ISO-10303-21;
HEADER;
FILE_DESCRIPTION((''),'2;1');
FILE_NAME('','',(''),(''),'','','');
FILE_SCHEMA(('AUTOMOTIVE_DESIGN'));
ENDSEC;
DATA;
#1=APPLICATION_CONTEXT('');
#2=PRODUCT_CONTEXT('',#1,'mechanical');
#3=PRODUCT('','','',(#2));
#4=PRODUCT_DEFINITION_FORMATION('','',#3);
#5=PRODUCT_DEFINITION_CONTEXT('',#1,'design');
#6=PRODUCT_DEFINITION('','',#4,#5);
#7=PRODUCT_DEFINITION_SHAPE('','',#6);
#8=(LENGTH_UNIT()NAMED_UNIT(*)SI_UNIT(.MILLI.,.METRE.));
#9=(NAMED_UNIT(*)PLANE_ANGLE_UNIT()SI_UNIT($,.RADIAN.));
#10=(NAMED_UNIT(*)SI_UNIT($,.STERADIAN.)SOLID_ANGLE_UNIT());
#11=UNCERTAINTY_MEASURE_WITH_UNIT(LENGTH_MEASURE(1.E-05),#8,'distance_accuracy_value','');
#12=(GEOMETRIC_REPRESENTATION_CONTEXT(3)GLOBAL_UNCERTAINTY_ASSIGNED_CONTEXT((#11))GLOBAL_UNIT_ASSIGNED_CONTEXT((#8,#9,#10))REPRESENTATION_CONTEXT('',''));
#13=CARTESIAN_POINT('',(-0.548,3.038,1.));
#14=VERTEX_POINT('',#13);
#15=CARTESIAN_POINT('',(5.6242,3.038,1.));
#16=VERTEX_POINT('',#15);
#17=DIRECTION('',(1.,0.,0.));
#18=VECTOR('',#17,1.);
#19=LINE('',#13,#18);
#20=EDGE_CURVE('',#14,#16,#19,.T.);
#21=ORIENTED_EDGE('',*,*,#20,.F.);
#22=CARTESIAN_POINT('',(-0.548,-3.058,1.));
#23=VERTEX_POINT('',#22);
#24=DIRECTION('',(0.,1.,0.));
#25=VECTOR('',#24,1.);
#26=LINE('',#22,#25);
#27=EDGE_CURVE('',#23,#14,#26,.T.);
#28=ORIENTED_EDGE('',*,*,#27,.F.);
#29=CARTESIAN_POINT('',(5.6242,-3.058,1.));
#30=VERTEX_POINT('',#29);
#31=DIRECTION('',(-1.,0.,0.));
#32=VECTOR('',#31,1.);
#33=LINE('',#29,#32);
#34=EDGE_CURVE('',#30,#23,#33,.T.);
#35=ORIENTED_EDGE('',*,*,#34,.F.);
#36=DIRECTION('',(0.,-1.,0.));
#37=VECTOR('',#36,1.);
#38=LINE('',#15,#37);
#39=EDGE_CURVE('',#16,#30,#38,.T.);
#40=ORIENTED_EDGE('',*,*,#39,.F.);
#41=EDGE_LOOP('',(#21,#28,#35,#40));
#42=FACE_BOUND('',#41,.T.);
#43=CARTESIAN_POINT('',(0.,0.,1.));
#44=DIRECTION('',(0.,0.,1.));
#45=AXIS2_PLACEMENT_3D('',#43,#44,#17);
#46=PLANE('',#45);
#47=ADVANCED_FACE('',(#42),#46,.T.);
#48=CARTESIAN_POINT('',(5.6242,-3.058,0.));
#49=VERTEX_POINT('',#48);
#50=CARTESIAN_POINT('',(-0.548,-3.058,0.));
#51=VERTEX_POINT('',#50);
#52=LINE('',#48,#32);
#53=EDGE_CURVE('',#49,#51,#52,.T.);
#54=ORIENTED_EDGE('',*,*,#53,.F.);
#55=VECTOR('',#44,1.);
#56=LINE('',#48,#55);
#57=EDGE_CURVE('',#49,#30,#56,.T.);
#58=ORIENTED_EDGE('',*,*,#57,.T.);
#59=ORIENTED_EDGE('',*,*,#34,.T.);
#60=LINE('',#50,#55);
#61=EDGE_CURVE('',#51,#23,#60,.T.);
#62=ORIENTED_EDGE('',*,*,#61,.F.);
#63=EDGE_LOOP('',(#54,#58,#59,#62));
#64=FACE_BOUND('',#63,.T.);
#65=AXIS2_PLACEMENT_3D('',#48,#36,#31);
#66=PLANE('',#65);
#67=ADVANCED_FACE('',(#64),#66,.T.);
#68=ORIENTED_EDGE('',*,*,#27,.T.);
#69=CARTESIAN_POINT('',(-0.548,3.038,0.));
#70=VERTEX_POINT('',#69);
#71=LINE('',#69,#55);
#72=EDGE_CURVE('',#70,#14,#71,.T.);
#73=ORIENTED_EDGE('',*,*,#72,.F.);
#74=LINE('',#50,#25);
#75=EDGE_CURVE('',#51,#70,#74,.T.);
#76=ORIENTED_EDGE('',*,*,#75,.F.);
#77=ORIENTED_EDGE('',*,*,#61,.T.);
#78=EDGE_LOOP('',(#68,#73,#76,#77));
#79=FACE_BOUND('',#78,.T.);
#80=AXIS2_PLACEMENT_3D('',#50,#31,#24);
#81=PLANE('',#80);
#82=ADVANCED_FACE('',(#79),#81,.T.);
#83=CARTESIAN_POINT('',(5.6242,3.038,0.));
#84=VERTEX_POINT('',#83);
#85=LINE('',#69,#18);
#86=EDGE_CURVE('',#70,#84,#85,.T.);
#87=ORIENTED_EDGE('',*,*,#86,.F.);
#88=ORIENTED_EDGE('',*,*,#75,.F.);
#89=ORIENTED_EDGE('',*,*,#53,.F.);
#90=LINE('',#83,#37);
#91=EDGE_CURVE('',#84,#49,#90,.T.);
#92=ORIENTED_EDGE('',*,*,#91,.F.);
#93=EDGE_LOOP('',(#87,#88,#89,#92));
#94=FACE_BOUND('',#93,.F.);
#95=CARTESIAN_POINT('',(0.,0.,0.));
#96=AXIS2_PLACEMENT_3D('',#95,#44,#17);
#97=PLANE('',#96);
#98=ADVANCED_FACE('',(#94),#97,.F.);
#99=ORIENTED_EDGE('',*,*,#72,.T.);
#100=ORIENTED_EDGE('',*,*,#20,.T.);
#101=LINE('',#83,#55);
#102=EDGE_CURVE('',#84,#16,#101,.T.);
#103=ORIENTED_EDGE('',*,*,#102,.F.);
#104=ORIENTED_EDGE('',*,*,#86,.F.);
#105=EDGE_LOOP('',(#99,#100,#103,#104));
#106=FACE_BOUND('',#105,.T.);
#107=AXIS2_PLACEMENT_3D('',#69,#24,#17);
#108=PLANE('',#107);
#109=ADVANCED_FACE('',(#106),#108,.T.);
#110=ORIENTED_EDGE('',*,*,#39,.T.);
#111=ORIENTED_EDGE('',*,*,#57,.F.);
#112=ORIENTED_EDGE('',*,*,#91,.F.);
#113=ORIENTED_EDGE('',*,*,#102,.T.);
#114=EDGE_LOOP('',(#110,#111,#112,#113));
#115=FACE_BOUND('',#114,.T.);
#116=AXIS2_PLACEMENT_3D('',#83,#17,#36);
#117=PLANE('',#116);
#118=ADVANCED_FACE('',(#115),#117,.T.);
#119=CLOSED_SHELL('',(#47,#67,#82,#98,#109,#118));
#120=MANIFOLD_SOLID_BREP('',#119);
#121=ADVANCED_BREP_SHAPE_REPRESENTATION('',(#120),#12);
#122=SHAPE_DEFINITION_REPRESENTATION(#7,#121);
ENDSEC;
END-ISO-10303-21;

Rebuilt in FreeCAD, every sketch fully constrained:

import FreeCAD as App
import Part
import Sketcher
Q = App.Units.Quantity

doc = App.newDocument("Part")
body = doc.addObject("PartDesign::Body", "Body")

sketch1 = doc.addObject("Sketcher::SketchObject", "Sketch")
body.addObject(sketch1)
sketch1.AttachmentSupport = (doc.XY_Plane, [""])
sketch1.MapMode = "FlatFace"
sketch1.addGeometry([
    Part.LineSegment(App.Vector(6, 3, 0), App.Vector(-1, 3, 0)),
    Part.LineSegment(App.Vector(-1, 3, 0), App.Vector(-1, -3, 0)),
    Part.LineSegment(App.Vector(-1, -3, 0), App.Vector(6, -3, 0)),
    Part.LineSegment(App.Vector(6, -3, 0), App.Vector(6, 3, 0)),
], False)
sketch1.addConstraint([
    Sketcher.Constraint("Coincident", 0, 2, 1, 1),
    Sketcher.Constraint("Coincident", 1, 2, 2, 1),
    Sketcher.Constraint("Coincident", 2, 2, 3, 1),
    Sketcher.Constraint("Coincident", 3, 2, 0, 1),
    Sketcher.Constraint("Horizontal", 0),
    Sketcher.Constraint("Vertical", 1),
    Sketcher.Constraint("Horizontal", 2),
    Sketcher.Constraint("Vertical", 3),
    Sketcher.Constraint("DistanceY", 1, 2, 1, 1, Q("0.24 in")),
    Sketcher.Constraint("DistanceX", 0, 2, 0, 1, Q("0.243 in")),
    Sketcher.Constraint("DistanceY", -1, 1, 0, 2, Q("0.1196 in")),
    Sketcher.Constraint("DistanceX", 0, 2, -1, 1, 0.548),
])
pad1 = doc.addObject("PartDesign::Pad", "Pad")
body.addObject(pad1)
pad1.Profile = sketch1
pad1.Length = 1

doc.recompute()
